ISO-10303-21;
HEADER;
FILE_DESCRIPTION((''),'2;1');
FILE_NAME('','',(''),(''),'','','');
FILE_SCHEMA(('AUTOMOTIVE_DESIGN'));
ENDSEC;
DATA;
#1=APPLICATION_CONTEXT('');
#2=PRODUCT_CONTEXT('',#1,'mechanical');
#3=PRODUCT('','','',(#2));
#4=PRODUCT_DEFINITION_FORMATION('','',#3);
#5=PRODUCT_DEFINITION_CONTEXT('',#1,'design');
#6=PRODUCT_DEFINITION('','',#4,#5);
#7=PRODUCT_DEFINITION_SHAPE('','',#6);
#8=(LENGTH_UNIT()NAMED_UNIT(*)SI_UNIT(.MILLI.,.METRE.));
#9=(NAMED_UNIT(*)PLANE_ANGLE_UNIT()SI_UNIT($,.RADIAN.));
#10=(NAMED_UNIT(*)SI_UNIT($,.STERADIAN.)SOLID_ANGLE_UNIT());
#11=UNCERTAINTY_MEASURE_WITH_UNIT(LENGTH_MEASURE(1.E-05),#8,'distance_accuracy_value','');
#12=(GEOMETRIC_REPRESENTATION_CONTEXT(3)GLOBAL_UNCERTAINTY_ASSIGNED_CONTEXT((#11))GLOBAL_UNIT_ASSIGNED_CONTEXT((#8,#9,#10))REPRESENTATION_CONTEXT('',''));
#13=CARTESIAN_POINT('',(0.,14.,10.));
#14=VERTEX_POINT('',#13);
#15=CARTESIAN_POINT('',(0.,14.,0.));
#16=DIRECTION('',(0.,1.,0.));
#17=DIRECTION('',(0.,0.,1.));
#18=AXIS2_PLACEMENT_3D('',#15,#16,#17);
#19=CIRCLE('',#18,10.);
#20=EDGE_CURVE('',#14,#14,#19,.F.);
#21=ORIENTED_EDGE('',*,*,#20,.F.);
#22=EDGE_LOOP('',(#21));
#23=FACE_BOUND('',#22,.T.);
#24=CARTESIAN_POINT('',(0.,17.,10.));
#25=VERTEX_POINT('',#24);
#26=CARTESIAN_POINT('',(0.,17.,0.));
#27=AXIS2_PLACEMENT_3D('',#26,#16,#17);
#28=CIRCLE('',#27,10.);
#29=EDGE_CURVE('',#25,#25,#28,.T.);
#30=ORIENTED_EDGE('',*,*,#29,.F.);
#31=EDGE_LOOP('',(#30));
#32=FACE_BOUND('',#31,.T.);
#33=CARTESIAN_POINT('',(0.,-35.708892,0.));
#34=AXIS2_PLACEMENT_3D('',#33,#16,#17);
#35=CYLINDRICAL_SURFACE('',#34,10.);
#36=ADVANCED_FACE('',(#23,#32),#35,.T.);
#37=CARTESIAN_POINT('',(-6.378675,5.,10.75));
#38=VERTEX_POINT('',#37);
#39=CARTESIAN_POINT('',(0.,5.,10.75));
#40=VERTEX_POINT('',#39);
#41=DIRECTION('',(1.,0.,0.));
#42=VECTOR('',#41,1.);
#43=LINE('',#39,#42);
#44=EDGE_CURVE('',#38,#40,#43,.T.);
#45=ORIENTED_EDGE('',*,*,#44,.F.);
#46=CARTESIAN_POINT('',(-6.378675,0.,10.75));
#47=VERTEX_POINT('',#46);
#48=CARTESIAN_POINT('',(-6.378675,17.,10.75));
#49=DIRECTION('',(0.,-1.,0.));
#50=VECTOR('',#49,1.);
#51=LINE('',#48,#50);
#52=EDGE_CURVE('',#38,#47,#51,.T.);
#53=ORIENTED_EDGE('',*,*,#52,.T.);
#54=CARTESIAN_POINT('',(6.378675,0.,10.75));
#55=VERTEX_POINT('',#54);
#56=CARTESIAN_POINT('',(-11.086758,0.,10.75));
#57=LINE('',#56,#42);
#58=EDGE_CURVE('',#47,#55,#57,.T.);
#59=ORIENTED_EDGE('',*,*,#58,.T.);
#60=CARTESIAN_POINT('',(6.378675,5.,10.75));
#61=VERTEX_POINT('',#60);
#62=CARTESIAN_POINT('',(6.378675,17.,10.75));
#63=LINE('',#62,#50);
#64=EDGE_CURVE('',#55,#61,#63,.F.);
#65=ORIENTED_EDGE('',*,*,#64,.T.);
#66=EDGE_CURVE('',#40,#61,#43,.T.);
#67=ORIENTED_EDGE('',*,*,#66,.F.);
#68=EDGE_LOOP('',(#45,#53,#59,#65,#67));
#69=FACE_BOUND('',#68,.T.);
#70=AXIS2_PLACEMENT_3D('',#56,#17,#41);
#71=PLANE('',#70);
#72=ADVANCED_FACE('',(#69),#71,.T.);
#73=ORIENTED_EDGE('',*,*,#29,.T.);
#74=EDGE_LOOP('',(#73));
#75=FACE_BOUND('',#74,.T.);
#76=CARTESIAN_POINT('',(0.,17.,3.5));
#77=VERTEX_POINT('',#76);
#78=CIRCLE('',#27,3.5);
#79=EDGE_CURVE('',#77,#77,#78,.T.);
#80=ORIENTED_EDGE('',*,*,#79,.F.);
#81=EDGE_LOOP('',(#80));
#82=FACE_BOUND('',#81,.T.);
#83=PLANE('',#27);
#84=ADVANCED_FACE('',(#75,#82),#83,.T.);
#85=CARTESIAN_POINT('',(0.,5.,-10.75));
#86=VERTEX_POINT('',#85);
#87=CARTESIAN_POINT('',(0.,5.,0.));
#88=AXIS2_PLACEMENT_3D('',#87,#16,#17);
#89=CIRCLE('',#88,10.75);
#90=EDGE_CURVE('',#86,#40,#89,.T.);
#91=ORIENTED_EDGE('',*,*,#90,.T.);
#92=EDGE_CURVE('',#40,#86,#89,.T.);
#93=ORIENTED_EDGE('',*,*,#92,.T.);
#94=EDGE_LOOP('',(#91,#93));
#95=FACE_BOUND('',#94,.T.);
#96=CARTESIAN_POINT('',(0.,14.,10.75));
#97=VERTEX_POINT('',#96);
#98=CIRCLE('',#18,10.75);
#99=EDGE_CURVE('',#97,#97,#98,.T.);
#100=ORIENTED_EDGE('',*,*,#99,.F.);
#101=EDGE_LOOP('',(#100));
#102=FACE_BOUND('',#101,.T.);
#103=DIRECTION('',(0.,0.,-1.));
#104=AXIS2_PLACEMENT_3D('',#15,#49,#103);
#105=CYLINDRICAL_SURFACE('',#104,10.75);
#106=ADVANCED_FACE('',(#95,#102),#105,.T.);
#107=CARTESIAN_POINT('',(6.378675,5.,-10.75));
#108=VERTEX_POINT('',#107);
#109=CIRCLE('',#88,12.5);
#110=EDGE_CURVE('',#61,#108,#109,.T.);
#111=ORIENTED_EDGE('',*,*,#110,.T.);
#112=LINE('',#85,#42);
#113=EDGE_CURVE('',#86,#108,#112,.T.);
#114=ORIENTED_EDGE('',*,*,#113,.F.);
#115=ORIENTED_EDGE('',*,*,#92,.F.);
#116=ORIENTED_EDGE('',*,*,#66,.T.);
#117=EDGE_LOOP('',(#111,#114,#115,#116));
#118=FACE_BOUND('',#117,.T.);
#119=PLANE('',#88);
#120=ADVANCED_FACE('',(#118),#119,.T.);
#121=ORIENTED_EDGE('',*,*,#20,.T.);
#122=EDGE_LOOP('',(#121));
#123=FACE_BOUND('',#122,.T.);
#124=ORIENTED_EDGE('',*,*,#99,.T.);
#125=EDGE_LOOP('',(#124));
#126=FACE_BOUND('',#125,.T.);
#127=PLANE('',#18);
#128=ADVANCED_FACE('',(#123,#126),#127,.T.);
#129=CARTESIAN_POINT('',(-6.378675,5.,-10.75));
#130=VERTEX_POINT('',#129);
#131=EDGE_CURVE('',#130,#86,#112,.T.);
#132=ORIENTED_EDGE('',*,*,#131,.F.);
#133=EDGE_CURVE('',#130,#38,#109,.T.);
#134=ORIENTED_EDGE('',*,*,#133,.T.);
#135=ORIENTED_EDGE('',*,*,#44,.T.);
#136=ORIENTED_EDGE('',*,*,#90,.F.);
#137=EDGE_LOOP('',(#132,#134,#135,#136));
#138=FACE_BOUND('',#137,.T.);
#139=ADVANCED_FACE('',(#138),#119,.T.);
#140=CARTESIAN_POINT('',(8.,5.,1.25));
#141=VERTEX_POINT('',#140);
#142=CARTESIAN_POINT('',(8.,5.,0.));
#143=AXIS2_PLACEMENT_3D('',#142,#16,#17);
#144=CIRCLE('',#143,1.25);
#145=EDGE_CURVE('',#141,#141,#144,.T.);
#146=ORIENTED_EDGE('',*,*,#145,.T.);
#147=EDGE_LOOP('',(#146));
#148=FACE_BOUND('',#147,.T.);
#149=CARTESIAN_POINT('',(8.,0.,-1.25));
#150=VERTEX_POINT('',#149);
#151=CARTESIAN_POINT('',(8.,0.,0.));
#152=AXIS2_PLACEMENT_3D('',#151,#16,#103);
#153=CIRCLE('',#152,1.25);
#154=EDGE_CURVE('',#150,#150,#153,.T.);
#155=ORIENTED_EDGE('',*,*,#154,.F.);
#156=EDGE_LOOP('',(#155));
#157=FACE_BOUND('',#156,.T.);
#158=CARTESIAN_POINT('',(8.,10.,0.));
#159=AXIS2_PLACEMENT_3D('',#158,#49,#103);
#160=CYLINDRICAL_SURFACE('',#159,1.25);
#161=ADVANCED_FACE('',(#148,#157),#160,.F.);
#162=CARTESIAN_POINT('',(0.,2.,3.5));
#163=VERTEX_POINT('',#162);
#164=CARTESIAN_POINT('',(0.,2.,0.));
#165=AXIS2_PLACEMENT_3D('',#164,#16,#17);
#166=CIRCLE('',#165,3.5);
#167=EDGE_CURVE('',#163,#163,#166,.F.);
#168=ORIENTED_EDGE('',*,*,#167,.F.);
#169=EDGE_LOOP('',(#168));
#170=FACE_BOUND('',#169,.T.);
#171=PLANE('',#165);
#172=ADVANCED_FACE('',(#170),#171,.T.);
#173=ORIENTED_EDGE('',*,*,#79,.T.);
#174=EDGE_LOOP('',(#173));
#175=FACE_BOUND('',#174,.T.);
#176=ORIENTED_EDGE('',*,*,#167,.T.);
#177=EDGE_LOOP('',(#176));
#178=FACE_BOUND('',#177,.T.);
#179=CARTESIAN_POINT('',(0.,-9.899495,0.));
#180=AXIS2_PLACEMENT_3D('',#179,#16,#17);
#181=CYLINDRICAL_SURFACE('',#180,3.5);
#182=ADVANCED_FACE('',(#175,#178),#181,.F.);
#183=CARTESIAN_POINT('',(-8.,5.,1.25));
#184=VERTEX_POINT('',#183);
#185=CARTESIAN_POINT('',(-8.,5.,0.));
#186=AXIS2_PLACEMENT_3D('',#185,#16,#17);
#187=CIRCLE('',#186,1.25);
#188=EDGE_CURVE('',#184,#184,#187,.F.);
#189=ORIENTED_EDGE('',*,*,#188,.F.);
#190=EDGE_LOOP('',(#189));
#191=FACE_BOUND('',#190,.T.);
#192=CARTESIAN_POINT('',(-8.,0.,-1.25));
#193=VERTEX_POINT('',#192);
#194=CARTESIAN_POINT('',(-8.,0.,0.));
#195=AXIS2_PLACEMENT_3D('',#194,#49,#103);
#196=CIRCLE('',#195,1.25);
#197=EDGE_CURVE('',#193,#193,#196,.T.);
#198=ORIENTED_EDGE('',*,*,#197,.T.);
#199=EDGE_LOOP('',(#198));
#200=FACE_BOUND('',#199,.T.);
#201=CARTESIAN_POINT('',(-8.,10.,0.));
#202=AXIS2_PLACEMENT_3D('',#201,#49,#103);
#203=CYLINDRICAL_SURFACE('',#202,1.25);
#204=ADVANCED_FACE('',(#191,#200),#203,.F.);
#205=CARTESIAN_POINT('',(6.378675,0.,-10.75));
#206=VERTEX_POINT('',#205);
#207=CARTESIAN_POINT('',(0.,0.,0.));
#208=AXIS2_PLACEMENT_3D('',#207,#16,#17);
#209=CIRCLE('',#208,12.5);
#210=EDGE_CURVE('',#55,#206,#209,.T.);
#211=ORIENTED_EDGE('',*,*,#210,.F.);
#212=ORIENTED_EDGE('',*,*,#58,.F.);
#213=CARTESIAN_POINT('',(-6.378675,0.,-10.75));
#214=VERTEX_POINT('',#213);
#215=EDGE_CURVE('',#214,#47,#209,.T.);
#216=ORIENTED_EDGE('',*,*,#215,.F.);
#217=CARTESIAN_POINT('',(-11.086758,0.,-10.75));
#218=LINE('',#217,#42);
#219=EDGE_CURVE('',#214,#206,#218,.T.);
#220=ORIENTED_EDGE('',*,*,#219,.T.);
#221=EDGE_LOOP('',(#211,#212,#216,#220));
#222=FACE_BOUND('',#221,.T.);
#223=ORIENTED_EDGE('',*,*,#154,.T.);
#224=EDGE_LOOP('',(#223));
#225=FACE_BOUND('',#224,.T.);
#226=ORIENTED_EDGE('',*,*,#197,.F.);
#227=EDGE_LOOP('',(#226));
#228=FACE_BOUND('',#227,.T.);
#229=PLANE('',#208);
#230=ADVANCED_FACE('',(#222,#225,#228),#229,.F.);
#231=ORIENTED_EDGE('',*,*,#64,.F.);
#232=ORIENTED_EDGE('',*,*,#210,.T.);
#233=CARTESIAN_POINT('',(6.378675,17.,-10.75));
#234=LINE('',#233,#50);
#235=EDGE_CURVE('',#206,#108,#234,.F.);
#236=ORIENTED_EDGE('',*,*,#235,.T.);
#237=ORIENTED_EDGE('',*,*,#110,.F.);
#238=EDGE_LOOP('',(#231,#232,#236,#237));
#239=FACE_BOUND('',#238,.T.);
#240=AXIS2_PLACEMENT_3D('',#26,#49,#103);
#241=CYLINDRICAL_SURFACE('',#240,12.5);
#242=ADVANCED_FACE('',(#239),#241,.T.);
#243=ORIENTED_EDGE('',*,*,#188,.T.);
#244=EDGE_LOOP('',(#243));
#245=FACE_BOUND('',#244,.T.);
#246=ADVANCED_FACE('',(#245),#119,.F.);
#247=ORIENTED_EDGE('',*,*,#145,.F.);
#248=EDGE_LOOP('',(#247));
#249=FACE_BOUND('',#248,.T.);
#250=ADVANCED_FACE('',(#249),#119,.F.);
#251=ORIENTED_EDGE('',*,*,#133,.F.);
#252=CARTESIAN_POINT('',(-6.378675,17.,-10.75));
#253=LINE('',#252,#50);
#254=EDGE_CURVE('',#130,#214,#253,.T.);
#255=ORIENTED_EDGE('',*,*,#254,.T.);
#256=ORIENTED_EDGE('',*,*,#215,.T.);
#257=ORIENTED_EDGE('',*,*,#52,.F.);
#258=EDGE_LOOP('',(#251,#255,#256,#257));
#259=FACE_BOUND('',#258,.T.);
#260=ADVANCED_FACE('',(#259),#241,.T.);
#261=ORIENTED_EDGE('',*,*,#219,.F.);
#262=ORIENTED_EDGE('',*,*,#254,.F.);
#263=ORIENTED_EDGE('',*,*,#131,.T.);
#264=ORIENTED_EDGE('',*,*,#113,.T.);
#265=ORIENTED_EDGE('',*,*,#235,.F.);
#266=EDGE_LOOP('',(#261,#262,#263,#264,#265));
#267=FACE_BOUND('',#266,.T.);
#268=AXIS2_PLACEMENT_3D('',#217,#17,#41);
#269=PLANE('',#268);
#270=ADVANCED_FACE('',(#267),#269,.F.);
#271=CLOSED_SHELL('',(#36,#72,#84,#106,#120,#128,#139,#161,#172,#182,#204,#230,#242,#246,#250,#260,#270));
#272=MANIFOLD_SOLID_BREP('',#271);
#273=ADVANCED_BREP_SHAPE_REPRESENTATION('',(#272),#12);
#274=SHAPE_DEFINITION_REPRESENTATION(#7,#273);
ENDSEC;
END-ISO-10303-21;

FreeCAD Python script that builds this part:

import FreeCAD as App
import Part
import Sketcher
from FreeCAD import Vector


def add_polygon(sketch, points):
    """Adds a closed chain of lines whose ends are joined by coincident constraints."""
    first, n = sketch.GeometryCount, len(points)
    for a, b in zip(points, points[1:] + points[:1]):
        sketch.addGeometry(Part.LineSegment(App.Vector(*a, 0), App.Vector(*b, 0)), False)
    for i in range(n):
        sketch.addConstraint(Sketcher.Constraint("Coincident", first + i, 2, first + (i + 1) % n, 1))

doc = App.newDocument("Part")
body = doc.addObject("PartDesign::Body", "Body")

sketch1 = body.newObject("Sketcher::SketchObject", "Sketch")
sketch1.AttachmentSupport = (doc.getObject("XZ_Plane"), [""])
sketch1.MapMode = "FlatFace"
sketch1.addGeometry(Part.Circle(Vector(0, 0, 0), Vector(0, 0, 1), 12.5), False)
sketch1.addConstraint([
    Sketcher.Constraint("Coincident", 0, 3, -1, 1),
    Sketcher.Constraint("Diameter", 0, 25.0),
])
pad1 = body.newObject("PartDesign::Pad", "Pad")
pad1.Profile = sketch1
pad1.Length = 17
pad1.Reversed = True

sketch2 = body.newObject("Sketcher::SketchObject", "Sketch001")
sketch2.AttachmentSupport = (doc.getObject("XZ_Plane"), [""])
sketch2.MapMode = "FlatFace"
sketch2.AttachmentOffset = App.Placement(Vector(0, 0, -17), App.Rotation())
sketch2.addGeometry(Part.Circle(Vector(0, 0, 0), Vector(0, 0, 1), 3.5), False)
sketch2.addConstraint([
    Sketcher.Constraint("Coincident", 0, 3, -1, 1),
    Sketcher.Constraint("Diameter", 0, 7.0),
])
pocket1 = body.newObject("PartDesign::Pocket", "Pocket")
pocket1.Profile = sketch2
pocket1.Length = 15
pocket1.Reversed = True

sketch3 = body.newObject("Sketcher::SketchObject", "Sketch002")
sketch3.AttachmentSupport = (doc.getObject("XZ_Plane"), [""])
sketch3.MapMode = "FlatFace"
sketch3.AttachmentOffset = App.Placement(Vector(0, 0, -17), App.Rotation())
add_polygon(sketch3, [(-17.423, -17.423), (-17.423, 17.423), (17.423, 17.423), (17.423, -17.423)])
sketch3.addGeometry(Part.Circle(Vector(0, 0, 0), Vector(0, 0, 1), 10), False)
sketch3.addConstraint([
    Sketcher.Constraint("Vertical", 0),
    Sketcher.Constraint("Horizontal", 1),
    Sketcher.Constraint("Vertical", 2),
    Sketcher.Constraint("Horizontal", 3),
    Sketcher.Constraint("Coincident", 4, 3, -1, 1),
    Sketcher.Constraint("Symmetric", 0, 2, 2, 2, -1, 1),
    Sketcher.Constraint("Equal", 3, 0),
    Sketcher.Constraint("Diameter", 4, 20.0),
    Sketcher.Constraint("DistanceX", 1, 1, 1, 2, 34.846),
])
pocket2 = body.newObject("PartDesign::Pocket", "Pocket001")
pocket2.Profile = sketch3
pocket2.Length = 12
pocket2.Reversed = True

sketch4 = body.newObject("Sketcher::SketchObject", "Sketch003")
sketch4.AttachmentSupport = (doc.getObject("XZ_Plane"), [""])
sketch4.MapMode = "FlatFace"
sketch4.addGeometry(Part.Circle(Vector(-8, 0, 0), Vector(0, 0, 1), 1.25), False)
sketch4.addConstraint([
    Sketcher.Constraint("PointOnObject", 0, 3, -1),
    Sketcher.Constraint("Diameter", 0, 2.5),
    Sketcher.Constraint("DistanceX", 0, 3, -1, 1, 8.0),
])
pocket3 = body.newObject("PartDesign::Pocket", "Pocket002")
pocket3.Profile = sketch4
pocket3.Length = 10
doc.recompute()

mirrored = body.newObject("PartDesign::Mirrored", "Mirrored")
mirrored.Originals = [pocket3]
mirrored.MirrorPlane = (doc.getObject("YZ_Plane"), [""])
body.Tip = mirrored

sketch5 = body.newObject("Sketcher::SketchObject", "Sketch004")
sketch5.AttachmentSupport = (doc.getObject("XZ_Plane"), [""])
sketch5.MapMode = "FlatFace"
sketch5.AttachmentOffset = App.Placement(Vector(0, 0, -5), App.Rotation())
sketch5.addGeometry([
    Part.Circle(Vector(0, 0, 0), Vector(0, 0, 1), 10.75),
    Part.Circle(Vector(0, 0, 0), Vector(0, 0, 1), 4),
], False)
sketch5.addConstraint([
    Sketcher.Constraint("Coincident", 0, 3, -1, 1),
    Sketcher.Constraint("Coincident", 1, 3, -1, 1),
    Sketcher.Constraint("Diameter", 1, 8.0),
    Sketcher.Constraint("Diameter", 0, 21.5),
])
pad2 = body.newObject("PartDesign::Pad", "Pad001")
pad2.Profile = sketch5
pad2.Length = 9
pad2.Reversed = True

sketch6 = body.newObject("Sketcher::SketchObject", "Sketch005")
sketch6.AttachmentSupport = (doc.getObject("XZ_Plane"), [""])
sketch6.MapMode = "FlatFace"
sketch6.AttachmentOffset = App.Placement(Vector(0, 0, -5), App.Rotation())
add_polygon(sketch6, [(-11.086758, -15.634412), (-11.086758, -10.75), (11.838998, -10.75), (11.838998, -15.634412)])
sketch6.addConstraint([
    Sketcher.Constraint("Vertical", 0),
    Sketcher.Constraint("Horizontal", 1),
    Sketcher.Constraint("Vertical", 2),
    Sketcher.Constraint("Horizontal", 3),
    Sketcher.Constraint("DistanceY", 0, 2, -1, 1, 10.75),
    Sketcher.Constraint("DistanceX", -1, 1, 1, 2, 11.838998),
    Sketcher.Constraint("DistanceX", 1, 1, 1, 2, 22.925756),
    Sketcher.Constraint("DistanceY", 0, 1, 0, 2, 4.884412),
])
pocket4 = body.newObject("PartDesign::Pocket", "Pocket003")
pocket4.Profile = sketch6
pocket4.Type = "ThroughAll"
pocket4.Reversed = True
doc.recompute()

mirrored2 = body.newObject("PartDesign::Mirrored", "Mirrored001")
mirrored2.Originals = [pocket4]
mirrored2.MirrorPlane = (doc.getObject("XY_Plane"), [""])
body.Tip = mirrored2

doc.recompute()
